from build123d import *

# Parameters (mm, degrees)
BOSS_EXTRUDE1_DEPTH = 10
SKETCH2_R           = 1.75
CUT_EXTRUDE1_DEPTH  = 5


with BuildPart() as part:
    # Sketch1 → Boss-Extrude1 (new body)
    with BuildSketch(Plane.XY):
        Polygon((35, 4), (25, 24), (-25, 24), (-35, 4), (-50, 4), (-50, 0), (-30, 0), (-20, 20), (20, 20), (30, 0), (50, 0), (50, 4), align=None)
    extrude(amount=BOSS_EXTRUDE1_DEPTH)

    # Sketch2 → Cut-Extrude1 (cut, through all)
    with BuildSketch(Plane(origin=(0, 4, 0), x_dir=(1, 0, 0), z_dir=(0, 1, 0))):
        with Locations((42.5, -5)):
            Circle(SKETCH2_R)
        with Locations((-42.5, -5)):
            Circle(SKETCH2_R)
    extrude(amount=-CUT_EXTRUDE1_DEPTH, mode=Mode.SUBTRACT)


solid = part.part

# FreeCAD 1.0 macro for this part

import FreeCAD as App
import Part
import Sketcher
from FreeCAD import Vector
Q = App.Units.Quantity


def add_polygon(sketch, points):
    """Adds a closed chain of lines whose ends are joined by coincident constraints."""
    first, n = sketch.GeometryCount, len(points)
    for a, b in zip(points, points[1:] + points[:1]):
        sketch.addGeometry(Part.LineSegment(App.Vector(*a, 0), App.Vector(*b, 0)), False)
    for i in range(n):
        sketch.addConstraint(Sketcher.Constraint("Coincident", first + i, 2, first + (i + 1) % n, 1))

doc = App.newDocument("Part")
body = doc.addObject("PartDesign::Body", "Body")

# Sketch on XY plane
sketch1 = body.newObject("Sketcher::SketchObject", "Sketch")
sketch1.AttachmentSupport = (doc.getObject("XY_Plane"), [""])
sketch1.MapMode = "FlatFace"
add_polygon(sketch1, [(35, 4), (25, 24), (-25, 24), (-35, 4), (-50, 4), (-50, 0), (-30, 0), (-20, 20), (20, 20), (30, 0), (50, 0), (50, 4)])  # lines 0-11
sketch1.addConstraint([
    Sketcher.Constraint("Horizontal", 1),
    Sketcher.Constraint("Horizontal", 3),
    Sketcher.Constraint("Vertical", 4),
    Sketcher.Constraint("Horizontal", 5),
    Sketcher.Constraint("Horizontal", 7),
    Sketcher.Constraint("Horizontal", 9),
    Sketcher.Constraint("Vertical", 10),
    Sketcher.Constraint("Horizontal", 11),
    Sketcher.Constraint("Symmetric", 5, 2, 8, 2, -1, 1),
    Sketcher.Constraint("Symmetric", 4, 2, 9, 2, -2),
    Sketcher.Constraint("Symmetric", 2, 2, 11, 2, -2),
    Sketcher.Constraint("Parallel", 2, 6),
    Sketcher.Constraint("Parallel", 0, 8),
    Sketcher.Constraint("Equal", 0, 2),
    Sketcher.Constraint("Equal", 2, 6),
    Sketcher.Constraint("DistanceX", 1, 2, 1, 1, Q("50 mm")),
    Sketcher.Constraint("DistanceX", 3, 2, 3, 1, Q("15 mm")),
    Sketcher.Constraint("DistanceX", 5, 1, 5, 2, Q("20 mm")),
    Sketcher.Constraint("DistanceY", 4, 2, 4, 1, Q("4 mm")),
    Sketcher.Constraint("DistanceY", -1, 1, 0, 2, Q("24 mm")),
    Sketcher.Constraint("DistanceX", 2, 2, -1, 1, Q("35 mm")),
])
pad1 = body.newObject("PartDesign::Pad", "Pad")
pad1.Profile = sketch1
pad1.Length = 10

# Sketch on XZ plane
sketch2 = body.newObject("Sketcher::SketchObject", "Sketch001")
sketch2.AttachmentSupport = (doc.getObject("XZ_Plane"), [""])
sketch2.MapMode = "FlatFace"
sketch2.AttachmentOffset = App.Placement(Vector(0, 0, -4), App.Rotation())
sketch2.addGeometry([
    Part.Circle(Vector(42.5, 5, 0), Vector(0, 0, 1), 1.8),
    Part.Circle(Vector(-42.5, 5, 0), Vector(0, 0, 1), 1.8),
], False)
sketch2.addConstraint([
    Sketcher.Constraint("Equal", 0, 1),
    Sketcher.Constraint("Symmetric", 0, 3, 1, 3, -2),
    Sketcher.Constraint("Diameter", 0, Q("3.5 mm")),
    Sketcher.Constraint("DistanceY", -1, 1, 0, 3, Q("5 mm")),
    Sketcher.Constraint("DistanceX", 1, 3, 0, 3, Q("85 mm")),
])
pocket1 = body.newObject("PartDesign::Pocket", "Pocket")
pocket1.Profile = sketch2
pocket1.Type = "ThroughAll"
pocket1.Reversed = True

doc.recompute()
